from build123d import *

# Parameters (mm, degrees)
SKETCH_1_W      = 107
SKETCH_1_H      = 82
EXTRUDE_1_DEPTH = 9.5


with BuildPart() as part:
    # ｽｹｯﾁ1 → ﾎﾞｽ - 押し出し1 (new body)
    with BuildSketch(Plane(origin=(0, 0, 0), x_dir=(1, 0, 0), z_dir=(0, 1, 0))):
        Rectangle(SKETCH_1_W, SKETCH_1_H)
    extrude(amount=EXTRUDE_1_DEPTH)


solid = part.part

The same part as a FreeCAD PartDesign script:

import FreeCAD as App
import Part
import Sketcher

V = App.Vector
Q = App.Units.Quantity


def add_polygon(sketch, points):
    """Adds a closed chain of lines whose ends are joined by coincident constraints."""
    first, n = sketch.GeometryCount, len(points)
    for a, b in zip(points, points[1:] + points[:1]):
        sketch.addGeometry(Part.LineSegment(App.Vector(*a, 0), App.Vector(*b, 0)), False)
    for i in range(n):
        sketch.addConstraint(Sketcher.Constraint("Coincident", first + i, 2, first + (i + 1) % n, 1))

doc = App.newDocument("Part")
params = doc.addObject("Spreadsheet::Sheet", "Params")
for row, (alias, value) in enumerate([
    ("sketch1_width", "107 mm"),
    ("sketch1_height", "82 mm"),
    ("pad1_length", "9.5 mm"),
], start=1):
    params.set(f"A{row}", alias)
    params.set(f"B{row}", "=" + value)
    params.setAlias(f"B{row}", alias)

body = doc.addObject("PartDesign::Body", "Body")

# Sketch on XZ plane
sketch1 = body.newObject("Sketcher::SketchObject", "Sketch")
sketch1.AttachmentSupport = (doc.getObject("XZ_Plane"), [""])
sketch1.MapMode = "FlatFace"
add_polygon(sketch1, [(-53.5, -41), (-53.5, 41), (53.5, 41), (53.5, -41)])  # lines 0-3
sketch1.addConstraint([
    Sketcher.Constraint("Vertical", 0),
    Sketcher.Constraint("Horizontal", 1),
    Sketcher.Constraint("Vertical", 2),
    Sketcher.Constraint("Horizontal", 3),
    Sketcher.Constraint("Symmetric", 0, 2, 2, 2, -1, 1),
    Sketcher.Constraint("DistanceX", 1, 1, 1, 2, Q("107 mm")),
    Sketcher.Constraint("DistanceY", 0, 1, 0, 2, Q("82 mm")),
])
sketch1.setExpression("Constraints[9]", "Params.sketch1_width")
sketch1.setExpression("Constraints[10]", "Params.sketch1_height")
pad1 = body.newObject("PartDesign::Pad", "Pad")
pad1.Profile = sketch1
pad1.setExpression("Length", "Params.pad1_length")
pad1.Reversed = True

doc.recompute()
